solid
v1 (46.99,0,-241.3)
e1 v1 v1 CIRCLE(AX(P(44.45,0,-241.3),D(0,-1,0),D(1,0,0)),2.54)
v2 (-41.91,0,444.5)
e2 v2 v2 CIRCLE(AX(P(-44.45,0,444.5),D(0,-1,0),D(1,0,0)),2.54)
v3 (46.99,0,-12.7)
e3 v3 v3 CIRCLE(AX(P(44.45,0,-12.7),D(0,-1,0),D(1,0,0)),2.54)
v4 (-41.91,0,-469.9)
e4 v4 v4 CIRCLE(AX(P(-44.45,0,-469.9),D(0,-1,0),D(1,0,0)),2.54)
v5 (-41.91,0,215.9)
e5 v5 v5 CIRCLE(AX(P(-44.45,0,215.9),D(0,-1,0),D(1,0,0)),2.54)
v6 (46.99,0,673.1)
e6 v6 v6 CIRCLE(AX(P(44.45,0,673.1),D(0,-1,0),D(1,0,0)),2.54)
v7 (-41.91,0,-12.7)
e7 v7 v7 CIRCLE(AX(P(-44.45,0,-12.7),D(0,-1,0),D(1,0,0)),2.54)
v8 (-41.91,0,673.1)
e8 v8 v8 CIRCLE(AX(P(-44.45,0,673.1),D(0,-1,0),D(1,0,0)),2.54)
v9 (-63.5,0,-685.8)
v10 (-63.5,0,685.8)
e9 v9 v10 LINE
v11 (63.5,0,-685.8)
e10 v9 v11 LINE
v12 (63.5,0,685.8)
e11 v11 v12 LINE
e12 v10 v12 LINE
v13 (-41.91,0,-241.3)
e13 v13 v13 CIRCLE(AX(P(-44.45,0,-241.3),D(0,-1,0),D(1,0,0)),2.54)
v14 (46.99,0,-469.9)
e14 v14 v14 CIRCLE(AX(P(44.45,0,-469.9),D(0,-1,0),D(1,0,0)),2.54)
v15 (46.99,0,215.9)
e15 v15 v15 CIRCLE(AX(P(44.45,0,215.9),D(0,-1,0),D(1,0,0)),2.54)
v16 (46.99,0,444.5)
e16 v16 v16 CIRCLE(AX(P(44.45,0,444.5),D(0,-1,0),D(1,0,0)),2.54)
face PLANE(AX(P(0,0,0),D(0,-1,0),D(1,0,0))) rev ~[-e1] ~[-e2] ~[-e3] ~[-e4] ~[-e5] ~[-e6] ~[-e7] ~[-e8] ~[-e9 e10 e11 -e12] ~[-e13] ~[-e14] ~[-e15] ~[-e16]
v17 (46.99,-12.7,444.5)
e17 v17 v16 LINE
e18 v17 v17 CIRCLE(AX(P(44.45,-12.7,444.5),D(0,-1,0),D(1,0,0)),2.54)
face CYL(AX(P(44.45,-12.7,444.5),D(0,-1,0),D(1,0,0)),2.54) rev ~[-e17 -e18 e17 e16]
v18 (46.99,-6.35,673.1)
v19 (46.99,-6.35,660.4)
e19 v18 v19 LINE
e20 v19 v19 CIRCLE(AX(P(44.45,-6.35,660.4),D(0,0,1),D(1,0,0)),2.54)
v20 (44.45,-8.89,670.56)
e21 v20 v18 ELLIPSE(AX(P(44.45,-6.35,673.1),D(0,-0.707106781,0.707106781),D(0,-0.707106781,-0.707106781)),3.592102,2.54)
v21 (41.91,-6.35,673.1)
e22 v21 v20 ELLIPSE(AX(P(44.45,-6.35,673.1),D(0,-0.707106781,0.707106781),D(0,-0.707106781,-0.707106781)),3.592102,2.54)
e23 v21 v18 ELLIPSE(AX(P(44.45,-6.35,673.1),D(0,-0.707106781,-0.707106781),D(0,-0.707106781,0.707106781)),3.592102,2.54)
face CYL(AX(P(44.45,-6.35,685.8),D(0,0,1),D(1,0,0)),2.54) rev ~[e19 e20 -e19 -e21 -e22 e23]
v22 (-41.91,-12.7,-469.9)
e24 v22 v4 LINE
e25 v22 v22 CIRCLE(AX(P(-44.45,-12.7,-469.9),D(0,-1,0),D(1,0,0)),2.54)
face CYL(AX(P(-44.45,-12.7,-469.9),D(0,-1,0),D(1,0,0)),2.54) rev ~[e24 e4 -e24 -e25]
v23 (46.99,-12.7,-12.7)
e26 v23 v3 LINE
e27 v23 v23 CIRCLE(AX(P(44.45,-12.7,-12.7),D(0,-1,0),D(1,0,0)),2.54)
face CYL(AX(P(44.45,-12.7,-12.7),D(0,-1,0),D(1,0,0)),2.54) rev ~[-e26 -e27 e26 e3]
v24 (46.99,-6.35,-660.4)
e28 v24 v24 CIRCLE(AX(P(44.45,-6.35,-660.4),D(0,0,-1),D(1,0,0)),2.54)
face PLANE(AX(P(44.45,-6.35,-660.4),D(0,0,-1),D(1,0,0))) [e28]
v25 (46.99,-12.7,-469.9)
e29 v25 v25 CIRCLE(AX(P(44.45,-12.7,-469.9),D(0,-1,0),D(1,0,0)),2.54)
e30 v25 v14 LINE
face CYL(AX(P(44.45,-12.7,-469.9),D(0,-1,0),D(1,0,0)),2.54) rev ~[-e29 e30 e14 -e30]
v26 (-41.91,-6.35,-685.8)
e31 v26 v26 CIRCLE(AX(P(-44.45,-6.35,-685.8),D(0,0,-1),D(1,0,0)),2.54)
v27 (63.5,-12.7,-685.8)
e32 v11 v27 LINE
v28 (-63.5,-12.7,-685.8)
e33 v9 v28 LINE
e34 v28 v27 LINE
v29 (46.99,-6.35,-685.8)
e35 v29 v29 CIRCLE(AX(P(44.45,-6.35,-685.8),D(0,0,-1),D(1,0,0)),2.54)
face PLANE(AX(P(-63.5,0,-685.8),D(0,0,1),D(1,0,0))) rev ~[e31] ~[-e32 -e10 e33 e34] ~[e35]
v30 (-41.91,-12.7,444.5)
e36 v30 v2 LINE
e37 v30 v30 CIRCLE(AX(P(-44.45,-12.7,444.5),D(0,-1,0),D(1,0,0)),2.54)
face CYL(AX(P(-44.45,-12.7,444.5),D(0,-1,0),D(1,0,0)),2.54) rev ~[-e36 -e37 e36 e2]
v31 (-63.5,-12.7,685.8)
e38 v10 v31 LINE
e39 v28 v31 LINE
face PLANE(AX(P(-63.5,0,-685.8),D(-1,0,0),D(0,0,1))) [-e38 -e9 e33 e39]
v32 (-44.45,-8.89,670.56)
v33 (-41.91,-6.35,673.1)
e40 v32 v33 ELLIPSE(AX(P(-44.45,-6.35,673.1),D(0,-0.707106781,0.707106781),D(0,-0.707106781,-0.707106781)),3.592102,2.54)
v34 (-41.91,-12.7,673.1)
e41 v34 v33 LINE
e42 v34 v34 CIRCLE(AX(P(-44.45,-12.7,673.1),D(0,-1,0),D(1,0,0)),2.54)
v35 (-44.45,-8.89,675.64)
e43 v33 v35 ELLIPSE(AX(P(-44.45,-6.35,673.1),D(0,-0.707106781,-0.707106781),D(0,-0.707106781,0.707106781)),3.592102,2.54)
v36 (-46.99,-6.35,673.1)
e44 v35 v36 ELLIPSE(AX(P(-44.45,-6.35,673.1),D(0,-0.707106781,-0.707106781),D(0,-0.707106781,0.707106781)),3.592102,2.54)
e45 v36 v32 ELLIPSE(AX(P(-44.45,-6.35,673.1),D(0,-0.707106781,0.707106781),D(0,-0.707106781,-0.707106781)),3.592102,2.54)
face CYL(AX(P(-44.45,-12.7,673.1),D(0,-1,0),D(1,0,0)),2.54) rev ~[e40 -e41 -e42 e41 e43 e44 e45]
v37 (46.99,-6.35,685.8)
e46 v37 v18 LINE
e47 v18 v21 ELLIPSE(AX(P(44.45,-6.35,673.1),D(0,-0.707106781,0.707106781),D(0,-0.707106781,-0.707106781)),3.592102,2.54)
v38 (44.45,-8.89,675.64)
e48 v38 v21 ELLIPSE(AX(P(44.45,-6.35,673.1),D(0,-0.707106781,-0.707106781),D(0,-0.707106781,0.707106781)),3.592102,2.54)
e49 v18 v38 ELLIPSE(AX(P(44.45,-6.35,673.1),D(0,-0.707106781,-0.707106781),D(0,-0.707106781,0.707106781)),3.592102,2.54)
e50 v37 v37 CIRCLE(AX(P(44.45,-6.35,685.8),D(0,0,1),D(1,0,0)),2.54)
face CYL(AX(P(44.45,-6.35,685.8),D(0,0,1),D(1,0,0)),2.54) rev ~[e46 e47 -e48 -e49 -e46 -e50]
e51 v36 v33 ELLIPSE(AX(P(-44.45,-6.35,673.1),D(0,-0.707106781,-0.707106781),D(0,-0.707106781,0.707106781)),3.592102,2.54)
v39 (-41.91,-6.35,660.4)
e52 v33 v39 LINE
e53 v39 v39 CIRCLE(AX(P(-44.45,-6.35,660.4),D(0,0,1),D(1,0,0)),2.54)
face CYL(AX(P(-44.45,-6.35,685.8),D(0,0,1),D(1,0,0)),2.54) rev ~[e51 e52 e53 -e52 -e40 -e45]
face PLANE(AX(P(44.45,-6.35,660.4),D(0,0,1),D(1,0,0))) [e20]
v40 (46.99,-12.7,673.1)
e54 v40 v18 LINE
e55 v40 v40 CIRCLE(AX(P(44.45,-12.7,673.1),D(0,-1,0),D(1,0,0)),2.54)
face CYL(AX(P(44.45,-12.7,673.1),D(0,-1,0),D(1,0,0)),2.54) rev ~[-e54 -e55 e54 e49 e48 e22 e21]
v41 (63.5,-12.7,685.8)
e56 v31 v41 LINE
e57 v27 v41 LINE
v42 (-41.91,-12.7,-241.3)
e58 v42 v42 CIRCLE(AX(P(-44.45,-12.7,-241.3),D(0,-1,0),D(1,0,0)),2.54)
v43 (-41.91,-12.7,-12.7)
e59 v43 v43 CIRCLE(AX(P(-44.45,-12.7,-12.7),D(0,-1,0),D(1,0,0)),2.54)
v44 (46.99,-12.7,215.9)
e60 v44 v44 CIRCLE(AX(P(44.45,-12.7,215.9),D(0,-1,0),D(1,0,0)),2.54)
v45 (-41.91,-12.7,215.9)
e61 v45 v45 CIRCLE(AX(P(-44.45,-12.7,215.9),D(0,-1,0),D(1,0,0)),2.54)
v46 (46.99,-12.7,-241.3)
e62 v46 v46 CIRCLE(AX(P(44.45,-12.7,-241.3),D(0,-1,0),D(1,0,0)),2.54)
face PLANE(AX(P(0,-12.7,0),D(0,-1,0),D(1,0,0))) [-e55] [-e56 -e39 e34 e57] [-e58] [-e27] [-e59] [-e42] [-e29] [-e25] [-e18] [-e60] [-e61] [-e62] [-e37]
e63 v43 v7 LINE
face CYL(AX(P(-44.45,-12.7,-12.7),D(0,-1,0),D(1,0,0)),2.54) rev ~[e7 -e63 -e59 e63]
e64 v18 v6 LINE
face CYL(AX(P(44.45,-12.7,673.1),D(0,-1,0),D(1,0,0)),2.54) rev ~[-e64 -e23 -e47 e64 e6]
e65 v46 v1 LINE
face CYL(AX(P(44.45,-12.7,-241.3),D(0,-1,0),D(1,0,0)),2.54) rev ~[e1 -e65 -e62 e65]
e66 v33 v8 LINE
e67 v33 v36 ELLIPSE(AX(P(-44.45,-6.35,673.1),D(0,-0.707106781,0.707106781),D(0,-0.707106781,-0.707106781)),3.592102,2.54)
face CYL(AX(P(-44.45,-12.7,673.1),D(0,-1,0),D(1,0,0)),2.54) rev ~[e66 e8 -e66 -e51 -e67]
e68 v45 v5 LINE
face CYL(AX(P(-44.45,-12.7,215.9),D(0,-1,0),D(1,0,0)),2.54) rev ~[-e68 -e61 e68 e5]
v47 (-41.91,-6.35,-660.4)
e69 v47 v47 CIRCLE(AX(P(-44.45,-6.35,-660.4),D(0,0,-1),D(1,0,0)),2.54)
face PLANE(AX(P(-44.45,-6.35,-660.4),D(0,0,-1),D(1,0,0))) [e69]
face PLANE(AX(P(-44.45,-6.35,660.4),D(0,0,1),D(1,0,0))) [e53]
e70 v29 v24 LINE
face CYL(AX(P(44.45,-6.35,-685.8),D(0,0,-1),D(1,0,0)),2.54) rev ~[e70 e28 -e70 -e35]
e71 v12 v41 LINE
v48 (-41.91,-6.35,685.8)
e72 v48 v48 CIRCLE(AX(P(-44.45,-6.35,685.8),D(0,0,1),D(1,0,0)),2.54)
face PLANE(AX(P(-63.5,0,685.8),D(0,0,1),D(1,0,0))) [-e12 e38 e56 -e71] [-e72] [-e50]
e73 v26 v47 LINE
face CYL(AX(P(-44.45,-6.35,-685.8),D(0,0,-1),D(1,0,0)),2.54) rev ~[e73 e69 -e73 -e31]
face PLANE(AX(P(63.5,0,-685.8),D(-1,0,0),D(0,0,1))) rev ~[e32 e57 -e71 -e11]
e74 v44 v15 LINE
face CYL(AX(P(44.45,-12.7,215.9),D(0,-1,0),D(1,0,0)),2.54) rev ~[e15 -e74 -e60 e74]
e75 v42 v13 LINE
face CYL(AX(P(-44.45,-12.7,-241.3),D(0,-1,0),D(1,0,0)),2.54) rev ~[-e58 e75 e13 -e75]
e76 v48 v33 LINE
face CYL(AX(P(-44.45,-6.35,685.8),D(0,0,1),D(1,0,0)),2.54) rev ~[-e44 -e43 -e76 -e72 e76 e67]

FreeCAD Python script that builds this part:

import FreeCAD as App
import Part
import Sketcher
Q = App.Units.Quantity

doc = App.newDocument("Part")
body = doc.addObject("PartDesign::Body", "Body")

sketch1 = doc.addObject("Sketcher::SketchObject", "Sketch")
body.addObject(sketch1)
sketch1.AttachmentSupport = (doc.XZ_Plane, [""])
sketch1.MapMode = "FlatFace"
sketch1.addGeometry([
    Part.LineSegment(App.Vector(-64, 686, 0), App.Vector(-64, -686, 0)),
    Part.LineSegment(App.Vector(-64, -686, 0), App.Vector(64, -686, 0)),
    Part.LineSegment(App.Vector(64, -686, 0), App.Vector(64, 686, 0)),
    Part.LineSegment(App.Vector(64, 686, 0), App.Vector(-64, 686, 0)),
], False)
sketch1.addConstraint([
    Sketcher.Constraint("Coincident", 0, 2, 1, 1),
    Sketcher.Constraint("Coincident", 1, 2, 2, 1),
    Sketcher.Constraint("Coincident", 2, 2, 3, 1),
    Sketcher.Constraint("Coincident", 3, 2, 0, 1),
    Sketcher.Constraint("Vertical", 0),
    Sketcher.Constraint("Horizontal", 1),
    Sketcher.Constraint("Vertical", 2),
    Sketcher.Constraint("Horizontal", 3),
    Sketcher.Constraint("Symmetric", 0, 2, 2, 2, -1, 1),
    Sketcher.Constraint("DistanceX", 1, 1, 1, 2, Q("5 in")),
    Sketcher.Constraint("DistanceY", 0, 2, 0, 1, Q("54 in")),
])
pad1 = doc.addObject("PartDesign::Pad", "Pad")
body.addObject(pad1)
pad1.Profile = sketch1
pad1.Length = Q("0.5 in")

sketch2 = doc.addObject("Sketcher::SketchObject", "Sketch001")
body.addObject(sketch2)
sketch2.AttachmentSupport = (doc.XZ_Plane, [""])
sketch2.MapMode = "FlatFace"
sketch2.AttachmentOffset = App.Placement(App.Vector(0, 0, 0.5 * 25.4), App.Rotation())
sketch2.addGeometry([
    Part.Circle(App.Vector(-44.5, -469.9, 0), App.Vector(0, 0, 1), 2.5),
    Part.Circle(App.Vector(44.5, -469.9, 0), App.Vector(0, 0, 1), 2.5),
    Part.Circle(App.Vector(44.5, -241.3, 0), App.Vector(0, 0, 1), 2.5),
    Part.Circle(App.Vector(-44.5, -241.3, 0), App.Vector(0, 0, 1), 2.5),
    Part.Circle(App.Vector(44.5, -12.7, 0), App.Vector(0, 0, 1), 2.5),
    Part.Circle(App.Vector(-44.5, -12.7, 0), App.Vector(0, 0, 1), 2.5),
    Part.Circle(App.Vector(44.5, 215.9, 0), App.Vector(0, 0, 1), 2.5),
    Part.Circle(App.Vector(-44.5, 215.9, 0), App.Vector(0, 0, 1), 2.5),
    Part.Circle(App.Vector(44.5, 444.5, 0), App.Vector(0, 0, 1), 2.5),
    Part.Circle(App.Vector(-44.5, 444.5, 0), App.Vector(0, 0, 1), 2.5),
    Part.Circle(App.Vector(44.5, 673.1, 0), App.Vector(0, 0, 1), 2.5),
    Part.Circle(App.Vector(-44.5, 673.1, 0), App.Vector(0, 0, 1), 2.5),
], False)
sketch2.addConstraint([
    Sketcher.Constraint("Equal", 0, 1),
    Sketcher.Constraint("Equal", 1, 2),
    Sketcher.Constraint("Equal", 2, 3),
    Sketcher.Constraint("Equal", 3, 4),
    Sketcher.Constraint("Equal", 4, 5),
    Sketcher.Constraint("Equal", 5, 6),
    Sketcher.Constraint("Equal", 6, 7),
    Sketcher.Constraint("Equal", 7, 8),
    Sketcher.Constraint("Equal", 8, 9),
    Sketcher.Constraint("Equal", 9, 10),
    Sketcher.Constraint("Equal", 10, 11),
    Sketcher.Constraint("Symmetric", 0, 3, 1, 3, -2),
    Sketcher.Constraint("Symmetric", 2, 3, 3, 3, -2),
    Sketcher.Constraint("Symmetric", 4, 3, 5, 3, -2),
    Sketcher.Constraint("Symmetric", 6, 3, 7, 3, -2),
    Sketcher.Constraint("Symmetric", 8, 3, 9, 3, -2),
    Sketcher.Constraint("Symmetric", 10, 3, 11, 3, -2),
    Sketcher.Constraint("Vertical", 1, 3, 2, 3),
    Sketcher.Constraint("Vertical", 2, 3, 4, 3),
    Sketcher.Constraint("Vertical", 4, 3, 6, 3),
    Sketcher.Constraint("Vertical", 6, 3, 8, 3),
    Sketcher.Constraint("Vertical", 8, 3, 10, 3),
    Sketcher.Constraint("Diameter", 0, Q("0.2 in")),
    Sketcher.Constraint("DistanceY", 1, 3, 2, 3, Q("9 in")),
    Sketcher.Constraint("DistanceY", 2, 3, 4, 3, Q("9 in")),
    Sketcher.Constraint("DistanceY", 4, 3, 6, 3, Q("9 in")),
    Sketcher.Constraint("DistanceY", 6, 3, 8, 3, Q("9 in")),
    Sketcher.Constraint("DistanceY", 8, 3, 10, 3, Q("9 in")),
    Sketcher.Constraint("DistanceY", 0, 3, -1, 1, Q("18.5 in")),
    Sketcher.Constraint("DistanceX", 0, 3, 1, 3, Q("3.5 in")),
])
pocket1 = doc.addObject("PartDesign::Pocket", "Pocket")
body.addObject(pocket1)
pocket1.Profile = sketch2
pocket1.Length = Q("12.2 in")

sketch3 = doc.addObject("Sketcher::SketchObject", "Sketch002")
body.addObject(sketch3)
sketch3.AttachmentSupport = (doc.XY_Plane, [""])
sketch3.MapMode = "FlatFace"
sketch3.AttachmentOffset = App.Placement(App.Vector(0, 0, -27 * 25.4), App.Rotation())
sketch3.addGeometry([
    Part.Circle(App.Vector(-44.5, -6.3, 0), App.Vector(0, 0, 1), 2.5),
    Part.Circle(App.Vector(44.5, -6.3, 0), App.Vector(0, 0, 1), 2.5),
], False)
sketch3.addConstraint([
    Sketcher.Constraint("Equal", 0, 1),
    Sketcher.Constraint("Symmetric", 0, 3, 1, 3, -2),
    Sketcher.Constraint("Diameter", 0, Q("0.2 in")),
    Sketcher.Constraint("DistanceX", 0, 3, 1, 3, Q("3.5 in")),
    Sketcher.Constraint("DistanceY", 0, 3, -1, 1, Q("0.25 in")),
])
pocket2 = doc.addObject("PartDesign::Pocket", "Pocket001")
body.addObject(pocket2)
pocket2.Profile = sketch3
pocket2.Length = Q("1 in")
pocket2.Reversed = True

sketch4 = doc.addObject("Sketcher::SketchObject", "Sketch003")
body.addObject(sketch4)
sketch4.AttachmentSupport = (doc.XY_Plane, [""])
sketch4.MapMode = "FlatFace"
sketch4.AttachmentOffset = App.Placement(App.Vector(0, 0, 27 * 25.4), App.Rotation())
sketch4.addGeometry([
    Part.Circle(App.Vector(-44.5, -6.3, 0), App.Vector(0, 0, 1), 2.5),
    Part.Circle(App.Vector(44.5, -6.3, 0), App.Vector(0, 0, 1), 2.5),
], False)
sketch4.addConstraint([
    Sketcher.Constraint("Equal", 0, 1),
    Sketcher.Constraint("Symmetric", 0, 3, 1, 3, -2),
    Sketcher.Constraint("Diameter", 0, Q("0.2 in")),
    Sketcher.Constraint("DistanceX", 0, 3, 1, 3, Q("3.5 in")),
    Sketcher.Constraint("DistanceY", 0, 3, -1, 1, Q("0.25 in")),
])
pocket3 = doc.addObject("PartDesign::Pocket", "Pocket002")
body.addObject(pocket3)
pocket3.Profile = sketch4
pocket3.Length = Q("1 in")

doc.recompute()
